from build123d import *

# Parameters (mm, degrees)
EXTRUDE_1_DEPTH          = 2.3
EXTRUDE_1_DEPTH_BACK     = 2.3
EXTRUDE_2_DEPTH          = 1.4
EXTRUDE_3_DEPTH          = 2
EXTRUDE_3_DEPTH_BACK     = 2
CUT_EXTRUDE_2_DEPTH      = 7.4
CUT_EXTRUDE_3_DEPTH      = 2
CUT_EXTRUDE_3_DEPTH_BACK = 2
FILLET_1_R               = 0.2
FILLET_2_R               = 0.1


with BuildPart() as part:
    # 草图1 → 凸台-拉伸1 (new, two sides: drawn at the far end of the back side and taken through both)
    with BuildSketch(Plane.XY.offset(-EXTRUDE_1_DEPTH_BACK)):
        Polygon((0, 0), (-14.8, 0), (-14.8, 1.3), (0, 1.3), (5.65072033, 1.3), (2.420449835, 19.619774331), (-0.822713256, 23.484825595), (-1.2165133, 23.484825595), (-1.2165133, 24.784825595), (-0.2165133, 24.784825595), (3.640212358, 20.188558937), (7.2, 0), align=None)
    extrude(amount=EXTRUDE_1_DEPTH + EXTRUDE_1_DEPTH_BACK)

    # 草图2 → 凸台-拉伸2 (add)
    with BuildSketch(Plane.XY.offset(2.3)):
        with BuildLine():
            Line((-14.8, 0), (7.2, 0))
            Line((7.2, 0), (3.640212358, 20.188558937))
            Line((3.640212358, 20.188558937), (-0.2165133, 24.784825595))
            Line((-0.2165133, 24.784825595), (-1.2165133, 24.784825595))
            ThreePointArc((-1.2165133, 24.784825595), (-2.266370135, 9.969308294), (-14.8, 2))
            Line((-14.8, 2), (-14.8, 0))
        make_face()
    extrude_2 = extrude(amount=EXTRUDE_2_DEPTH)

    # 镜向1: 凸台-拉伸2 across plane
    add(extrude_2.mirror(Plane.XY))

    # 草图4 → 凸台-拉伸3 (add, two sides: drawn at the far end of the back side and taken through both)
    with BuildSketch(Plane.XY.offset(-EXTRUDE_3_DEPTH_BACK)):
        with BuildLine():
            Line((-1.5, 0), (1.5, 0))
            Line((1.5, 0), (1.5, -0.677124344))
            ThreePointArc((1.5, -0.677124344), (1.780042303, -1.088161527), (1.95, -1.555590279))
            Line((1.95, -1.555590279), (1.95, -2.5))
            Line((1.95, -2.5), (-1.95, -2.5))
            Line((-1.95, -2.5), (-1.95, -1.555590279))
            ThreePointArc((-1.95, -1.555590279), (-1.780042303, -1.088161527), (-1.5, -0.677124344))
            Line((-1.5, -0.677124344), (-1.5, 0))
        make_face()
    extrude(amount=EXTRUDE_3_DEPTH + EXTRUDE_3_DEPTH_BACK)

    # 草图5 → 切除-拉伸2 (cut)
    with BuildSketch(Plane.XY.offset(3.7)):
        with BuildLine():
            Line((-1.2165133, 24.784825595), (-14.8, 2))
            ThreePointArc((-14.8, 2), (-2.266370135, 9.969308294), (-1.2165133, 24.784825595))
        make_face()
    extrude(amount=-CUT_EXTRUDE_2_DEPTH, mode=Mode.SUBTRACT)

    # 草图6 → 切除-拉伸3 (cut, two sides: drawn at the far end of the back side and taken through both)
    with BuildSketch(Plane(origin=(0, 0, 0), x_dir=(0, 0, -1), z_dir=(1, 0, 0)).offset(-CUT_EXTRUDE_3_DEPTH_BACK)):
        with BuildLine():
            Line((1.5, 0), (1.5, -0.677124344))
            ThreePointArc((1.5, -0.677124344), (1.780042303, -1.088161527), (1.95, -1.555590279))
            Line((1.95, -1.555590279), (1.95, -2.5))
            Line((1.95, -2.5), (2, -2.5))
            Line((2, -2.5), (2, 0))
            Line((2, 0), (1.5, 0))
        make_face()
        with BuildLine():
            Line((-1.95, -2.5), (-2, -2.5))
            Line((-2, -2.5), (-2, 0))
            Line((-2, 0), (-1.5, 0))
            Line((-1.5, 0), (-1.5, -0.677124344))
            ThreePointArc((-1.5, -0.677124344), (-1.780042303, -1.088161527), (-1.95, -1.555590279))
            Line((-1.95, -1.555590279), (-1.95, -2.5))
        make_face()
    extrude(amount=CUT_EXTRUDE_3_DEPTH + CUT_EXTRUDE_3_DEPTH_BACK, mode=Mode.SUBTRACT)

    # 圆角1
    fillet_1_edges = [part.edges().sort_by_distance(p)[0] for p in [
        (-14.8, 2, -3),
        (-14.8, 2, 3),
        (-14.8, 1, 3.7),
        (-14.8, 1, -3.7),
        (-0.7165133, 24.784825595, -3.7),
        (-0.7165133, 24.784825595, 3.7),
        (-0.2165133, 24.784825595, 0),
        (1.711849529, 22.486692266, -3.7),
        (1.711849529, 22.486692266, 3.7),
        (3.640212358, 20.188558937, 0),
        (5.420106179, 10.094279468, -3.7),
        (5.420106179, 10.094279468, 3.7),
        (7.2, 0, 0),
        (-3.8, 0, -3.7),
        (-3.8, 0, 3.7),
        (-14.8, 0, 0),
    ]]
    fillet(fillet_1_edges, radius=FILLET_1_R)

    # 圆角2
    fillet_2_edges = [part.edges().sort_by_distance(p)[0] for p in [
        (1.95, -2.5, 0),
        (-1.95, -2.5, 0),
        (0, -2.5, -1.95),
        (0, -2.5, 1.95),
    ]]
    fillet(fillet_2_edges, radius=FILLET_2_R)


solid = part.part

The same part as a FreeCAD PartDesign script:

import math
import FreeCAD as App
import Part
import Sketcher

V = App.Vector
Q = App.Units.Quantity


def edges_at(feature, points):
    """Names of the edges that pass closest to the given points."""
    edges = feature.Shape.Edges
    near = lambda p: min(range(len(edges)), key=lambda i: edges[i].distToShape(Part.Vertex(*p))[0])
    return sorted({f"Edge{near(p) + 1}" for p in points})


def add_polygon(sketch, points):
    """Adds a closed chain of lines whose ends are joined by coincident constraints."""
    first, n = sketch.GeometryCount, len(points)
    for a, b in zip(points, points[1:] + points[:1]):
        sketch.addGeometry(Part.LineSegment(App.Vector(*a, 0), App.Vector(*b, 0)), False)
    for i in range(n):
        sketch.addConstraint(Sketcher.Constraint("Coincident", first + i, 2, first + (i + 1) % n, 1))

doc = App.newDocument("Part")
body = doc.addObject("PartDesign::Body", "Body")

sketch1 = body.newObject("Sketcher::SketchObject", "Sketch")
sketch1.AttachmentSupport = (doc.getObject("XY_Plane"), [""])
sketch1.MapMode = "FlatFace"
add_polygon(sketch1, [(-14.8, 0), (7.2, 0), (3.64, 20.19), (-0.22, 24.78), (-1.22, 24.78), (-1.22, 23.48), (-0.82, 23.48), (2.42, 19.62), (5.65, 1.3), (-14.8, 1.3)])
sketch1.addConstraint([
    Sketcher.Constraint("Horizontal", 0),
    Sketcher.Constraint("Horizontal", 3),
    Sketcher.Constraint("Vertical", 4),
    Sketcher.Constraint("Horizontal", 5),
    Sketcher.Constraint("Horizontal", 8),
    Sketcher.Constraint("Vertical", 9),
    Sketcher.Constraint("PointOnObject", 0, 2, -1),
    Sketcher.Constraint("Parallel", 2, 6),
    Sketcher.Constraint("Parallel", 1, 7),
    Sketcher.Constraint("Equal", 4, 9),
    Sketcher.Constraint("DistanceX", 0, 1, 0, 2, Q("22 mm")),
    Sketcher.Constraint("DistanceX", 3, 2, 3, 1, Q("1 mm")),
    Sketcher.Constraint("Angle", 1, Q("100 deg")),
    Sketcher.Constraint("Angle", 2, Q("130 deg")),
    Sketcher.Constraint("Distance", 2, Q("6 mm")),
    Sketcher.Constraint("DistanceY", 4, 2, 4, 1, Q("1.3 mm")),
    Sketcher.Constraint("Distance", 1, Q("20.5 mm")),
    Sketcher.Constraint("DistanceX", -1, 1, 0, 2, Q("7.2 mm")),
    Sketcher.Constraint("DistanceX", 5, 1, 5, 2, Q("0.3938 mm")),
    Sketcher.Constraint("DistanceX", 8, 2, 8, 1, Q("20.45072 mm")),
])
pad1 = body.newObject("PartDesign::Pad", "Pad")
pad1.Profile = sketch1
pad1.Type = "TwoLengths"
pad1.Length = 2.3
pad1.Length2 = 2.3

sketch2 = body.newObject("Sketcher::SketchObject", "Sketch001")
sketch2.AttachmentSupport = (doc.getObject("XY_Plane"), [""])
sketch2.MapMode = "FlatFace"
sketch2.AttachmentOffset = App.Placement(V(0, 0, 2.3), App.Rotation())
sketch2.addGeometry([
    Part.LineSegment(V(-14.8, 0, 0), V(7.2, 0, 0)),
    Part.LineSegment(V(7.2, 0, 0), V(3.6, 20.2, 0)),
    Part.LineSegment(V(3.6, 20.2, 0), V(-0.2, 24.8, 0)),
    Part.LineSegment(V(-0.2, 24.8, 0), V(-1.2, 24.8, 0)),
    Part.ArcOfCircle(Part.Circle(V(-16.4, 18.4, 0), V(0, 0, 1), 16.5), math.radians(-84), math.radians(23)),
    Part.LineSegment(V(-14.8, 2, 0), V(-14.8, 0, 0)),
], False)
sketch2.addConstraint([
    Sketcher.Constraint("Coincident", 0, 2, 1, 1),
    Sketcher.Constraint("Coincident", 1, 2, 2, 1),
    Sketcher.Constraint("Coincident", 2, 2, 3, 1),
    Sketcher.Constraint("Coincident", 3, 2, 4, 2),
    Sketcher.Constraint("Coincident", 4, 1, 5, 1),
    Sketcher.Constraint("Coincident", 5, 2, 0, 1),
    Sketcher.Constraint("Horizontal", 0),
    Sketcher.Constraint("Horizontal", 3),
    Sketcher.Constraint("Vertical", 5),
    Sketcher.Constraint("PointOnObject", 0, 2, -1),
    Sketcher.Constraint("DistanceX", 0, 1, 0, 2, Q("22 mm")),
    Sketcher.Constraint("DistanceX", 3, 2, 3, 1, Q("1 mm")),
    Sketcher.Constraint("DistanceY", 5, 2, 5, 1, Q("2 mm")),
    Sketcher.Constraint("Angle", 1, Q("100 deg")),
    Sketcher.Constraint("Angle", 2, Q("130 deg")),
    Sketcher.Constraint("Distance", 2, Q("6 mm")),
    Sketcher.Constraint("Distance", 1, Q("20.5 mm")),
    Sketcher.Constraint("DistanceX", -1, 1, 0, 2, Q("7.2 mm")),
    Sketcher.Constraint("Radius", 4, Q("16.500185 mm")),
])
pad2 = body.newObject("PartDesign::Pad", "Pad001")
pad2.Profile = sketch2
pad2.Length = 1.4
doc.recompute()

mirrored = body.newObject("PartDesign::Mirrored", "Mirrored")
mirrored.Originals = [pad2]
mirrored.MirrorPlane = (doc.getObject("XY_Plane"), [""])
body.Tip = mirrored

sketch3 = body.newObject("Sketcher::SketchObject", "Sketch002")
sketch3.AttachmentSupport = (doc.getObject("XY_Plane"), [""])
sketch3.MapMode = "FlatFace"
sketch3.addGeometry([
    Part.LineSegment(V(1.5, 0, 0), V(-1.5, 0, 0)),
    Part.LineSegment(V(-1.5, 0, 0), V(-1.5, -0.7, 0)),
    Part.ArcOfCircle(Part.Circle(V(0, -2, 0), V(0, 0, 1), 2), math.radians(139), math.radians(167)),
    Part.LineSegment(V(-1.9, -1.6, 0), V(-1.9, -2.5, 0)),
    Part.LineSegment(V(-1.9, -2.5, 0), V(1.9, -2.5, 0)),
    Part.LineSegment(V(1.9, -2.5, 0), V(1.9, -1.6, 0)),
    Part.ArcOfCircle(Part.Circle(V(0, -2, 0), V(0, 0, 1), 2), math.radians(13), math.radians(41)),
    Part.LineSegment(V(1.5, -0.7, 0), V(1.5, 0, 0)),
], False)
sketch3.addConstraint([
    Sketcher.Constraint("Coincident", 0, 2, 1, 1),
    Sketcher.Constraint("Coincident", 1, 2, 2, 1),
    Sketcher.Constraint("Coincident", 2, 2, 3, 1),
    Sketcher.Constraint("Coincident", 3, 2, 4, 1),
    Sketcher.Constraint("Coincident", 4, 2, 5, 1),
    Sketcher.Constraint("Coincident", 5, 2, 6, 1),
    Sketcher.Constraint("Coincident", 6, 2, 7, 1),
    Sketcher.Constraint("Coincident", 7, 2, 0, 1),
    Sketcher.Constraint("Horizontal", 0),
    Sketcher.Constraint("Vertical", 1),
    Sketcher.Constraint("Vertical", 3),
    Sketcher.Constraint("Horizontal", 4),
    Sketcher.Constraint("Vertical", 5),
    Sketcher.Constraint("Vertical", 7),
    Sketcher.Constraint("Coincident", 6, 3, 2, 3),
    Sketcher.Constraint("Equal", 2, 6),
    Sketcher.Constraint("Symmetric", 0, 2, 7, 2, -1, 1),
    Sketcher.Constraint("Symmetric", 2, 2, 5, 2, -2),
    Sketcher.Constraint("Radius", 2, Q("2 mm")),
    Sketcher.Constraint("DistanceX", 0, 2, 0, 1, Q("3 mm")),
    Sketcher.Constraint("DistanceX", 4, 1, 4, 2, Q("3.9 mm")),
    Sketcher.Constraint("DistanceY", 2, 3, -1, 1, Q("2 mm")),
    Sketcher.Constraint("DistanceY", 3, 2, -1, 1, Q("2.5 mm")),
])
pad3 = body.newObject("PartDesign::Pad", "Pad002")
pad3.Profile = sketch3
pad3.Type = "TwoLengths"
pad3.Length = 2
pad3.Length2 = 2

sketch4 = body.newObject("Sketcher::SketchObject", "Sketch003")
sketch4.AttachmentSupport = (doc.getObject("XY_Plane"), [""])
sketch4.MapMode = "FlatFace"
sketch4.AttachmentOffset = App.Placement(V(0, 0, 3.7), App.Rotation())
sketch4.addGeometry([
    Part.LineSegment(V(-1, 25, 0), V(-15, 2, 0)),
    Part.ArcOfCircle(Part.Circle(V(-16, 18, 0), V(0, 0, 1), 17), math.radians(-84), math.radians(23)),
], False)
sketch4.addConstraint([
    Sketcher.Constraint("Coincident", 0, 1, 1, 2),
    Sketcher.Constraint("Coincident", 1, 1, 0, 2),
    Sketcher.Constraint("DistanceY", -1, 1, 1, 1, Q("2 mm")),
    Sketcher.Constraint("DistanceX", 1, 1, -1, 1, Q("14.8 mm")),
    Sketcher.Constraint("Radius", 1, Q("16.500185 mm")),
    Sketcher.Constraint("Distance", 0, Q("26.526579 mm")),
    Sketcher.Constraint("DistanceY", -1, 1, 1, 3, Q("18.418572 mm")),
])
pocket1 = body.newObject("PartDesign::Pocket", "Pocket")
pocket1.Profile = sketch4
pocket1.Length = 7.4

sketch5 = body.newObject("Sketcher::SketchObject", "Sketch004")
sketch5.AttachmentSupport = (doc.getObject("YZ_Plane"), [""])
sketch5.MapMode = "FlatFace"
sketch5.addGeometry([
    Part.LineSegment(V(0, -1.5, 0), V(-0.68, -1.5, 0)),
    Part.ArcOfCircle(Part.Circle(V(-2, 0, 0), V(0, 0, 1), 2), math.radians(-77), math.radians(-49)),
    Part.LineSegment(V(-1.56, -1.95, 0), V(-2.5, -1.95, 0)),
    Part.LineSegment(V(-2.5, -1.95, 0), V(-2.5, -2, 0)),
    Part.LineSegment(V(-2.5, -2, 0), V(0, -2, 0)),
    Part.LineSegment(V(0, -2, 0), V(0, -1.5, 0)),
    Part.LineSegment(V(-2.5, 2, 0), V(-2.5, 1.95, 0)),
    Part.LineSegment(V(-2.5, 1.95, 0), V(-1.56, 1.95, 0)),
    Part.ArcOfCircle(Part.Circle(V(-2, 0, 0), V(0, 0, 1), 2), math.radians(49), math.radians(77)),
    Part.LineSegment(V(-0.68, 1.5, 0), V(0, 1.5, 0)),
    Part.LineSegment(V(0, 1.5, 0), V(0, 2, 0)),
    Part.LineSegment(V(0, 2, 0), V(-2.5, 2, 0)),
], False)
sketch5.addConstraint([
    Sketcher.Constraint("Coincident", 0, 2, 1, 2),
    Sketcher.Constraint("Coincident", 1, 1, 2, 1),
    Sketcher.Constraint("Coincident", 2, 2, 3, 1),
    Sketcher.Constraint("Coincident", 3, 2, 4, 1),
    Sketcher.Constraint("Coincident", 4, 2, 5, 1),
    Sketcher.Constraint("Coincident", 5, 2, 0, 1),
    Sketcher.Constraint("Coincident", 6, 2, 7, 1),
    Sketcher.Constraint("Coincident", 7, 2, 8, 2),
    Sketcher.Constraint("Coincident", 8, 1, 9, 1),
    Sketcher.Constraint("Coincident", 9, 2, 10, 1),
    Sketcher.Constraint("Coincident", 10, 2, 11, 1),
    Sketcher.Constraint("Coincident", 11, 2, 6, 1),
    Sketcher.Constraint("Horizontal", 0),
    Sketcher.Constraint("Horizontal", 2),
    Sketcher.Constraint("Vertical", 3),
    Sketcher.Constraint("Horizontal", 4),
    Sketcher.Constraint("Vertical", 5),
    Sketcher.Constraint("Vertical", 6),
    Sketcher.Constraint("Horizontal", 7),
    Sketcher.Constraint("Horizontal", 9),
    Sketcher.Constraint("Vertical", 10),
    Sketcher.Constraint("Horizontal", 11),
    Sketcher.Constraint("Coincident", 8, 3, 1, 3),
    Sketcher.Constraint("Equal", 1, 8),
    Sketcher.Constraint("Symmetric", 5, 2, 9, 2, -1, 1),
    Sketcher.Constraint("Symmetric", 2, 2, 6, 2, -1),
    Sketcher.Constraint("Symmetric", 4, 2, 10, 2, -1),
    Sketcher.Constraint("PointOnObject", 1, 3, -1),
    Sketcher.Constraint("Radius", 1, Q("2 mm")),
    Sketcher.Constraint("DistanceX", 4, 1, 4, 2, Q("2.5 mm")),
    Sketcher.Constraint("DistanceY", 5, 1, 5, 2, Q("0.5 mm")),
    Sketcher.Constraint("DistanceX", 1, 3, -1, 1, Q("2 mm")),
    Sketcher.Constraint("DistanceY", 3, 2, -1, 1, Q("2 mm")),
    Sketcher.Constraint("DistanceY", 3, 2, 3, 1, Q("0.05 mm")),
])
pocket2 = body.newObject("PartDesign::Pocket", "Pocket001")
pocket2.Profile = sketch5
pocket2.Type = "ThroughAll"
pocket2.Midplane = True
doc.recompute()

fillet = body.newObject("PartDesign::Fillet", "Fillet")
fillet.Base = (pocket2, edges_at(pocket2, [
    (-14.8, 2, -3),
    (-14.8, 2, 3),
    (-14.8, 1, 3.7),
    (-14.8, 1, -3.7),
    (-0.717, 24.785, -3.7),
    (-0.717, 24.785, 3.7),
    (-0.217, 24.785, 0),
    (1.712, 22.487, -3.7),
    (1.712, 22.487, 3.7),
    (3.64, 20.189, 0),
    (5.42, 10.094, -3.7),
    (5.42, 10.094, 3.7),
    (7.2, 0, 0),
    (-3.8, 0, -3.7),
    (-3.8, 0, 3.7),
    (-14.8, 0, 0),
]))
fillet.Radius = 0.2
doc.recompute()

fillet2 = body.newObject("PartDesign::Fillet", "Fillet001")
fillet2.Base = (fillet, edges_at(fillet, [
    (1.95, -2.5, 0),
    (-1.95, -2.5, 0),
    (0, -2.5, -1.95),
    (0, -2.5, 1.95),
]))
fillet2.Radius = 0.1

doc.recompute()
